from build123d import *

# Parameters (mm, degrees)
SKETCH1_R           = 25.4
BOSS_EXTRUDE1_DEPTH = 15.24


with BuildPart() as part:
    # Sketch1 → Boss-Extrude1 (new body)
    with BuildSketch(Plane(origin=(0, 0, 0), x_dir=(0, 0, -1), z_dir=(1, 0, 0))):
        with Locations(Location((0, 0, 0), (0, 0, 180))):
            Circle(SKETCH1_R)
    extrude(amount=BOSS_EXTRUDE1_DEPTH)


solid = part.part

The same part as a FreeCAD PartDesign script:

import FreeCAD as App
import Part
import Sketcher
Q = App.Units.Quantity

doc = App.newDocument("Part")
body = doc.addObject("PartDesign::Body", "Body")

sketch1 = doc.addObject("Sketcher::SketchObject", "Sketch")
body.addObject(sketch1)
sketch1.AttachmentSupport = (doc.YZ_Plane, [""])
sketch1.MapMode = "FlatFace"
sketch1.addGeometry(Part.Circle(App.Vector(0, 0, 0), App.Vector(0, 0, 1), 25), False)
sketch1.addConstraint(Sketcher.Constraint("Coincident", 0, 3, -1, 1))
sketch1.addConstraint(Sketcher.Constraint("Diameter", 0, Q("2 in")))
pad1 = doc.addObject("PartDesign::Pad", "Pad")
body.addObject(pad1)
pad1.Profile = sketch1
pad1.Length = Q("0.6 in")

doc.recompute()
